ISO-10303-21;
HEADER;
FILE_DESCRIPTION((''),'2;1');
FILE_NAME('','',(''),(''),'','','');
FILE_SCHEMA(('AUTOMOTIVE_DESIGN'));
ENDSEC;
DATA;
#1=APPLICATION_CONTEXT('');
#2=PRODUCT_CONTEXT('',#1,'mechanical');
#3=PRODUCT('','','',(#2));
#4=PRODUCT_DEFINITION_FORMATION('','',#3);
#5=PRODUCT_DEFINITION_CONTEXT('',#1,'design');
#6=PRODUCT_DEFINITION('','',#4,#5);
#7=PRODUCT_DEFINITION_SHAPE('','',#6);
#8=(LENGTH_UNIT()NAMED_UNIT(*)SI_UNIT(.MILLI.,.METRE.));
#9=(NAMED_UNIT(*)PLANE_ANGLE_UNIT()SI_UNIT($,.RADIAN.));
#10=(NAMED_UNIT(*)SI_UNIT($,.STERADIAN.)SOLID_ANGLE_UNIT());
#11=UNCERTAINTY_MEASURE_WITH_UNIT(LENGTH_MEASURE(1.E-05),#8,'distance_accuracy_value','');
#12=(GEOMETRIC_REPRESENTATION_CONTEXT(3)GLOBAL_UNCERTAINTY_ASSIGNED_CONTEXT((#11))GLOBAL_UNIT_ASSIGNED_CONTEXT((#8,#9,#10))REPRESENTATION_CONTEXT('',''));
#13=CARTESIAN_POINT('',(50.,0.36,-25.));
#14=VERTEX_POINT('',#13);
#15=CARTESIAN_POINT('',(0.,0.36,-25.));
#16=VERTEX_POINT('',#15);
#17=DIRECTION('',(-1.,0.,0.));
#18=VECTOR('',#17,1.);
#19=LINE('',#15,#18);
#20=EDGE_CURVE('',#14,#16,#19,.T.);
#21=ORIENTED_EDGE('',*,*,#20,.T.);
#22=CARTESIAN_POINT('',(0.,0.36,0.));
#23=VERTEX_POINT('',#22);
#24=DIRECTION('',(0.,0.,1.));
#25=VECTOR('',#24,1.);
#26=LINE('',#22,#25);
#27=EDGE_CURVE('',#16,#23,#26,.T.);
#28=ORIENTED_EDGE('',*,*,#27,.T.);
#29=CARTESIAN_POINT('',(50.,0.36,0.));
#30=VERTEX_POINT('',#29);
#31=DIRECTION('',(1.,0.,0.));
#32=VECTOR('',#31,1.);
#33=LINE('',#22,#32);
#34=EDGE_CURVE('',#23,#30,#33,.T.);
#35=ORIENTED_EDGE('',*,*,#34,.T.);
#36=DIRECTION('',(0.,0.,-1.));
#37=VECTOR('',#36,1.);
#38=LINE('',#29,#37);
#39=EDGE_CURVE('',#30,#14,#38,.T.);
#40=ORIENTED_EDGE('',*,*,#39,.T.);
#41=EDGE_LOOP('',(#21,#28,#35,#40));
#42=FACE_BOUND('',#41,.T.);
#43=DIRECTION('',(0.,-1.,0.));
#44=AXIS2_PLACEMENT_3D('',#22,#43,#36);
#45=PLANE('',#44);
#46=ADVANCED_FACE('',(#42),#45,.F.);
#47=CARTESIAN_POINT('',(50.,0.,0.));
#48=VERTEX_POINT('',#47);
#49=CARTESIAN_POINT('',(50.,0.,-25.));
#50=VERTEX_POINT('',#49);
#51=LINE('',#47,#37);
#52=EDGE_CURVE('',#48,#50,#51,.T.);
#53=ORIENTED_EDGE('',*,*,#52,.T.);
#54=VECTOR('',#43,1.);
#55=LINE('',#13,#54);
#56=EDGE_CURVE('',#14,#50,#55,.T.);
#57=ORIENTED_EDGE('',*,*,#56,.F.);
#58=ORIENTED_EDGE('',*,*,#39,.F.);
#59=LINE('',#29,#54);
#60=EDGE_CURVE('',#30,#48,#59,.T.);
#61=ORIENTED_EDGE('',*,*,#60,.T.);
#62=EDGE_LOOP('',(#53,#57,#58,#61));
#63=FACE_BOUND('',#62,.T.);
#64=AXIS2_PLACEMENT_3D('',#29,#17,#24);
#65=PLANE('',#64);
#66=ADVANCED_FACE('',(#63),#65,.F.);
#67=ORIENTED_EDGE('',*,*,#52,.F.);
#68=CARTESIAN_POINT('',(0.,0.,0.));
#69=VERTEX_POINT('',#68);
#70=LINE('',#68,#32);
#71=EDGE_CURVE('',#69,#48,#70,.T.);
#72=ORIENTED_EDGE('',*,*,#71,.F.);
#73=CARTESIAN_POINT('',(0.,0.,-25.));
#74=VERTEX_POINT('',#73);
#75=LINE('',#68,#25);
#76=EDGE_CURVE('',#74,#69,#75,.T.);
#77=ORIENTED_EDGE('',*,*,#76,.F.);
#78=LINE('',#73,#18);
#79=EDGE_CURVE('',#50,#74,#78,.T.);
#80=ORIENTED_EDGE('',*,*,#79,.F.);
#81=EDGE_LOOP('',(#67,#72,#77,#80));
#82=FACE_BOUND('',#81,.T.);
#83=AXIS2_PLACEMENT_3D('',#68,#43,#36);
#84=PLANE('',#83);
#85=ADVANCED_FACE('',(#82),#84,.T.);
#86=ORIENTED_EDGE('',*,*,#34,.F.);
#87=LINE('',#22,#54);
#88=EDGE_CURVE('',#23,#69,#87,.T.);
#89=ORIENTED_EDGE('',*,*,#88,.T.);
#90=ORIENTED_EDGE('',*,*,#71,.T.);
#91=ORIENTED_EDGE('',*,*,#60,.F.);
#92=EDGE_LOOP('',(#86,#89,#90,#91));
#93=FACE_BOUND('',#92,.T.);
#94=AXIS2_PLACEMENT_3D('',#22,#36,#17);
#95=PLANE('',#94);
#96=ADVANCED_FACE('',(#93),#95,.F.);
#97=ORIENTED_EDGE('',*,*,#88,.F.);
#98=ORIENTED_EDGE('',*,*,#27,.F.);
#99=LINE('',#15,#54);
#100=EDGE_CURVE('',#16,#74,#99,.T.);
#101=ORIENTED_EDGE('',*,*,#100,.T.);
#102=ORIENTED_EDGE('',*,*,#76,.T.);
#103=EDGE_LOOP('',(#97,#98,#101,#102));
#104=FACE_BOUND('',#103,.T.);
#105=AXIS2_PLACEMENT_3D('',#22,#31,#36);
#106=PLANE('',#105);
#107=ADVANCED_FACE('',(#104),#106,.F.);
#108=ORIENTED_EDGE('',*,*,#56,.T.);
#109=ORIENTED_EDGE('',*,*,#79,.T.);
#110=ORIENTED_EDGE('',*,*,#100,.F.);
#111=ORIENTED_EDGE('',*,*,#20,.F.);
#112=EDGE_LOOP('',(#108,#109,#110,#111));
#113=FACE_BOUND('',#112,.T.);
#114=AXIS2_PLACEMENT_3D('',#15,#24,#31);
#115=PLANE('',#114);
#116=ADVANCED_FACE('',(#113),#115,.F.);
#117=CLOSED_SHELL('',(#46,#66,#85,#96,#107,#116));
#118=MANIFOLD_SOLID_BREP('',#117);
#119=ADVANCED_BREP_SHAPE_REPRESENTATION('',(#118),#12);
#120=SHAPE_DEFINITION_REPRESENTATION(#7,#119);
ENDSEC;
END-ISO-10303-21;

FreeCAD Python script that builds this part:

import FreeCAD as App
import Part
import Sketcher
from FreeCAD import Vector


def add_polygon(sketch, points):
    """Adds a closed chain of lines whose ends are joined by coincident constraints."""
    first, n = sketch.GeometryCount, len(points)
    for a, b in zip(points, points[1:] + points[:1]):
        sketch.addGeometry(Part.LineSegment(App.Vector(*a, 0), App.Vector(*b, 0)), False)
    for i in range(n):
        sketch.addConstraint(Sketcher.Constraint("Coincident", first + i, 2, first + (i + 1) % n, 1))

doc = App.newDocument("Part")
body = doc.addObject("PartDesign::Body", "Body")

sketch1 = body.newObject("Sketcher::SketchObject", "Sketch")
sketch1.AttachmentSupport = (doc.getObject("XZ_Plane"), [""])
sketch1.MapMode = "FlatFace"
add_polygon(sketch1, [(0, -25), (0, 0), (50, 0), (50, -25)])
sketch1.addConstraint([
    Sketcher.Constraint("Vertical", 0),
    Sketcher.Constraint("Horizontal", 1),
    Sketcher.Constraint("Vertical", 2),
    Sketcher.Constraint("Horizontal", 3),
    Sketcher.Constraint("Coincident", 0, 2, -1, 1),
    Sketcher.Constraint("DistanceX", 1, 1, 1, 2, 50.0),
    Sketcher.Constraint("DistanceY", 0, 1, 0, 2, 25.0),
])
pad1 = body.newObject("PartDesign::Pad", "Pad")
pad1.Profile = sketch1
pad1.Length = 0.36
pad1.Reversed = True

doc.recompute()
